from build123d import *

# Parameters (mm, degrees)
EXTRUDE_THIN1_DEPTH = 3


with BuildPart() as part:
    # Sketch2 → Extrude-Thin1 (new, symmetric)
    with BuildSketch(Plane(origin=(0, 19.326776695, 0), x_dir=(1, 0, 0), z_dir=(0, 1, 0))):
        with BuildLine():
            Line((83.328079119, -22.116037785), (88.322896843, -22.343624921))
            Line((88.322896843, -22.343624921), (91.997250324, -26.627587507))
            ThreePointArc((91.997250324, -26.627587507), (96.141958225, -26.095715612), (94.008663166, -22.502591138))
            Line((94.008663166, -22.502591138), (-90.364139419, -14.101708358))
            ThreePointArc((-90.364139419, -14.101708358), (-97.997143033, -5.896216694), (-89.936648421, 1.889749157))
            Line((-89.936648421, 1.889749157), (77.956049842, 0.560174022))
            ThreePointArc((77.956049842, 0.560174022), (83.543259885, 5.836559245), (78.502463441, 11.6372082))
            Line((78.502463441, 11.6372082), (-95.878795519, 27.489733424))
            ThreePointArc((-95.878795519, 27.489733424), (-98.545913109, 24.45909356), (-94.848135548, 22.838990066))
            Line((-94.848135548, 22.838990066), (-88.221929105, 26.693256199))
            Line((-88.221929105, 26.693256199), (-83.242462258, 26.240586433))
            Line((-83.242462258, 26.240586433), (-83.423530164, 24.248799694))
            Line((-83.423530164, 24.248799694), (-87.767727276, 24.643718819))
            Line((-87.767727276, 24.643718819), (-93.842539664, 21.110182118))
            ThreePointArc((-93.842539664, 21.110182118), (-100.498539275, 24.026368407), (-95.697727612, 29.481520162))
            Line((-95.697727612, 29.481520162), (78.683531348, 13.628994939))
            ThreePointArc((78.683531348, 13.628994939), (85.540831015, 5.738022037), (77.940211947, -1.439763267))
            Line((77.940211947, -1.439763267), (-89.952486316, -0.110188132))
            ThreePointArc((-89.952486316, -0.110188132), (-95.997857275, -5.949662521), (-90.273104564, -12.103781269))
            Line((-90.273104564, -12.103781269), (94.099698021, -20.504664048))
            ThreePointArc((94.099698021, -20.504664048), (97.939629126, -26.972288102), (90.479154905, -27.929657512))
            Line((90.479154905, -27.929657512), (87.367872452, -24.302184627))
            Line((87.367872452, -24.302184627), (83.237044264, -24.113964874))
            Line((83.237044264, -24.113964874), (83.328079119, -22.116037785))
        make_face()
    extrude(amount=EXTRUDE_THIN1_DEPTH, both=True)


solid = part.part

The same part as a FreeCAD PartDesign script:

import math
import FreeCAD as App
import Part
import Sketcher
Q = App.Units.Quantity

doc = App.newDocument("Part")
body = doc.addObject("PartDesign::Body", "Body")

# Sketch on XZ plane
sketch1 = body.newObject("Sketcher::SketchObject", "Sketch")
sketch1.AttachmentSupport = (doc.getObject("XZ_Plane"), [""])
sketch1.MapMode = "FlatFace"
sketch1.AttachmentOffset = App.Placement(App.Vector(0, 0, -19.326777), App.Rotation())
sketch1.addGeometry([
    Part.LineSegment(App.Vector(88.3, 22.3, 0), App.Vector(83.3, 22.1, 0)),  # 0
    Part.LineSegment(App.Vector(83.3, 22.1, 0), App.Vector(83.2, 24.1, 0)),  # 1
    Part.LineSegment(App.Vector(83.2, 24.1, 0), App.Vector(87.4, 24.3, 0)),  # 2
    Part.LineSegment(App.Vector(87.4, 24.3, 0), App.Vector(90.5, 27.9, 0)),  # 3
    Part.ArcOfCircle(Part.Circle(App.Vector(93.9, 25, 0), App.Vector(0, 0, 1), 4.5), math.radians(-87), math.radians(139)),  # 4
    Part.LineSegment(App.Vector(94.1, 20.5, 0), App.Vector(-90.3, 12.1, 0)),  # 5
    Part.ArcOfCircle(Part.Circle(App.Vector(-90, 6.1, 0), App.Vector(0, 0, 1), 6), math.radians(93), math.radians(270)),  # 6
    Part.LineSegment(App.Vector(-90, 0.1, 0), App.Vector(77.9, 1.4, 0)),  # 7
    Part.ArcOfCircle(Part.Circle(App.Vector(78, -6.1, 0), App.Vector(0, 0, 1), 7.5), math.radians(-85), math.radians(90)),  # 8
    Part.LineSegment(App.Vector(78.7, -13.6, 0), App.Vector(-95.7, -29.5, 0)),  # 9
    Part.ArcOfCircle(Part.Circle(App.Vector(-96.1, -25, 0), App.Vector(0, 0, 1), 4.5), math.radians(60), math.radians(275)),  # 10
    Part.LineSegment(App.Vector(-93.8, -21.1, 0), App.Vector(-87.8, -24.6, 0)),  # 11
    Part.LineSegment(App.Vector(-87.8, -24.6, 0), App.Vector(-83.4, -24.2, 0)),  # 12
    Part.LineSegment(App.Vector(-83.4, -24.2, 0), App.Vector(-83.2, -26.2, 0)),  # 13
    Part.LineSegment(App.Vector(-83.2, -26.2, 0), App.Vector(-88.2, -26.7, 0)),  # 14
    Part.LineSegment(App.Vector(-88.2, -26.7, 0), App.Vector(-94.8, -22.8, 0)),  # 15
    Part.ArcOfCircle(Part.Circle(App.Vector(-96.1, -25, 0), App.Vector(0, 0, 1), 2.5), math.radians(60), math.radians(275)),  # 16
    Part.LineSegment(App.Vector(-95.9, -27.5, 0), App.Vector(78.5, -11.6, 0)),  # 17
    Part.ArcOfCircle(Part.Circle(App.Vector(78, -6.1, 0), App.Vector(0, 0, 1), 5.5), math.radians(-85), math.radians(90)),  # 18
    Part.LineSegment(App.Vector(78, -0.6, 0), App.Vector(-89.9, -1.9, 0)),  # 19
    Part.ArcOfCircle(Part.Circle(App.Vector(-90, 6.1, 0), App.Vector(0, 0, 1), 8), math.radians(93), math.radians(270)),  # 20
    Part.LineSegment(App.Vector(-90.4, 14.1, 0), App.Vector(94, 22.5, 0)),  # 21
    Part.ArcOfCircle(Part.Circle(App.Vector(93.9, 25, 0), App.Vector(0, 0, 1), 2.5), math.radians(-87), math.radians(139)),  # 22
    Part.LineSegment(App.Vector(92, 26.6, 0), App.Vector(88.3, 22.3, 0)),  # 23
], False)
sketch1.addConstraint([
    Sketcher.Constraint("Coincident", 0, 2, 1, 1),
    Sketcher.Constraint("Coincident", 1, 2, 2, 1),
    Sketcher.Constraint("Coincident", 2, 2, 3, 1),
    Sketcher.Constraint("Tangent", 3, 2, 4, 2),
    Sketcher.Constraint("Tangent", 4, 1, 5, 1),
    Sketcher.Constraint("Tangent", 5, 2, 6, 1),
    Sketcher.Constraint("Tangent", 6, 2, 7, 1),
    Sketcher.Constraint("Tangent", 7, 2, 8, 2),
    Sketcher.Constraint("Tangent", 8, 1, 9, 1),
    Sketcher.Constraint("Tangent", 9, 2, 10, 2),
    Sketcher.Constraint("Tangent", 10, 1, 11, 1),
    Sketcher.Constraint("Coincident", 11, 2, 12, 1),
    Sketcher.Constraint("Coincident", 12, 2, 13, 1),
    Sketcher.Constraint("Coincident", 13, 2, 14, 1),
    Sketcher.Constraint("Coincident", 14, 2, 15, 1),
    Sketcher.Constraint("Tangent", 15, 2, 16, 1),
    Sketcher.Constraint("Tangent", 16, 2, 17, 1),
    Sketcher.Constraint("Tangent", 17, 2, 18, 1),
    Sketcher.Constraint("Tangent", 18, 2, 19, 1),
    Sketcher.Constraint("Tangent", 19, 2, 20, 2),
    Sketcher.Constraint("Tangent", 20, 1, 21, 1),
    Sketcher.Constraint("Tangent", 21, 2, 22, 1),
    Sketcher.Constraint("Tangent", 22, 2, 23, 1),
    Sketcher.Constraint("Coincident", 23, 2, 0, 1),
    Sketcher.Constraint("Coincident", 16, 3, 10, 3),
    Sketcher.Constraint("Coincident", 18, 3, 8, 3),
    Sketcher.Constraint("Coincident", 20, 3, 6, 3),
    Sketcher.Constraint("Coincident", 22, 3, 4, 3),
    Sketcher.Constraint("Equal", 4, 10),
    Sketcher.Constraint("Equal", 16, 22),
    Sketcher.Constraint("Perpendicular", 0, 1),
    Sketcher.Constraint("Perpendicular", 1, 2),
    Sketcher.Constraint("Parallel", 2, 5),
    Sketcher.Constraint("Parallel", 9, 12),
    Sketcher.Constraint("Perpendicular", 12, 13),
    Sketcher.Constraint("Perpendicular", 13, 14),
    Sketcher.Constraint("Parallel", 11, 15),
    Sketcher.Constraint("Parallel", 14, 17),
    Sketcher.Constraint("Parallel", 7, 19),
    Sketcher.Constraint("Parallel", 3, 23),
    Sketcher.Constraint("Equal", 1, 13),
    Sketcher.Constraint("Equal", 0, 14),
    Sketcher.Constraint("Radius", 6, Q("6 mm")),
    Sketcher.Constraint("Radius", 20, Q("8 mm")),
    Sketcher.Constraint("Radius", 4, Q("4.5 mm")),
    Sketcher.Constraint("Radius", 8, Q("7.55 mm")),
    Sketcher.Constraint("Distance", 0, Q("5 mm")),
    Sketcher.Constraint("Distance", 1, Q("2 mm")),
    Sketcher.Constraint("DistanceY", -1, 1, 4, 3, Q("25 mm")),
    Sketcher.Constraint("DistanceX", 6, 3, -1, 1, Q("90 mm")),
    Sketcher.Constraint("DistanceX", -1, 1, 8, 3, Q("78 mm")),
    Sketcher.Constraint("DistanceY", 10, 3, -1, 1, Q("25 mm")),
    Sketcher.Constraint("DistanceX", 10, 3, 4, 3, Q("190 mm")),
    Sketcher.Constraint("DistanceY", -1, 1, 6, 3, Q("6.11 mm")),
    Sketcher.Constraint("DistanceY", 8, 3, -1, 1, Q("6.11 mm")),
    Sketcher.Constraint("DistanceX", 9, 2, 11, 2, Q("7.93 mm")),
    Sketcher.Constraint("DistanceX", -1, 1, 4, 1, Q("94.099698 mm")),
    Sketcher.Constraint("DistanceY", 12, 2, -1, 1, Q("24.2488 mm")),
    Sketcher.Constraint("DistanceY", 7, 2, 1, 2, Q("22.674202 mm")),
    Sketcher.Constraint("Distance", 3, Q("4.778979 mm")),
])
pad1 = body.newObject("PartDesign::Pad", "Pad")
pad1.Profile = sketch1
pad1.Length = 6
pad1.Midplane = True

doc.recompute()
